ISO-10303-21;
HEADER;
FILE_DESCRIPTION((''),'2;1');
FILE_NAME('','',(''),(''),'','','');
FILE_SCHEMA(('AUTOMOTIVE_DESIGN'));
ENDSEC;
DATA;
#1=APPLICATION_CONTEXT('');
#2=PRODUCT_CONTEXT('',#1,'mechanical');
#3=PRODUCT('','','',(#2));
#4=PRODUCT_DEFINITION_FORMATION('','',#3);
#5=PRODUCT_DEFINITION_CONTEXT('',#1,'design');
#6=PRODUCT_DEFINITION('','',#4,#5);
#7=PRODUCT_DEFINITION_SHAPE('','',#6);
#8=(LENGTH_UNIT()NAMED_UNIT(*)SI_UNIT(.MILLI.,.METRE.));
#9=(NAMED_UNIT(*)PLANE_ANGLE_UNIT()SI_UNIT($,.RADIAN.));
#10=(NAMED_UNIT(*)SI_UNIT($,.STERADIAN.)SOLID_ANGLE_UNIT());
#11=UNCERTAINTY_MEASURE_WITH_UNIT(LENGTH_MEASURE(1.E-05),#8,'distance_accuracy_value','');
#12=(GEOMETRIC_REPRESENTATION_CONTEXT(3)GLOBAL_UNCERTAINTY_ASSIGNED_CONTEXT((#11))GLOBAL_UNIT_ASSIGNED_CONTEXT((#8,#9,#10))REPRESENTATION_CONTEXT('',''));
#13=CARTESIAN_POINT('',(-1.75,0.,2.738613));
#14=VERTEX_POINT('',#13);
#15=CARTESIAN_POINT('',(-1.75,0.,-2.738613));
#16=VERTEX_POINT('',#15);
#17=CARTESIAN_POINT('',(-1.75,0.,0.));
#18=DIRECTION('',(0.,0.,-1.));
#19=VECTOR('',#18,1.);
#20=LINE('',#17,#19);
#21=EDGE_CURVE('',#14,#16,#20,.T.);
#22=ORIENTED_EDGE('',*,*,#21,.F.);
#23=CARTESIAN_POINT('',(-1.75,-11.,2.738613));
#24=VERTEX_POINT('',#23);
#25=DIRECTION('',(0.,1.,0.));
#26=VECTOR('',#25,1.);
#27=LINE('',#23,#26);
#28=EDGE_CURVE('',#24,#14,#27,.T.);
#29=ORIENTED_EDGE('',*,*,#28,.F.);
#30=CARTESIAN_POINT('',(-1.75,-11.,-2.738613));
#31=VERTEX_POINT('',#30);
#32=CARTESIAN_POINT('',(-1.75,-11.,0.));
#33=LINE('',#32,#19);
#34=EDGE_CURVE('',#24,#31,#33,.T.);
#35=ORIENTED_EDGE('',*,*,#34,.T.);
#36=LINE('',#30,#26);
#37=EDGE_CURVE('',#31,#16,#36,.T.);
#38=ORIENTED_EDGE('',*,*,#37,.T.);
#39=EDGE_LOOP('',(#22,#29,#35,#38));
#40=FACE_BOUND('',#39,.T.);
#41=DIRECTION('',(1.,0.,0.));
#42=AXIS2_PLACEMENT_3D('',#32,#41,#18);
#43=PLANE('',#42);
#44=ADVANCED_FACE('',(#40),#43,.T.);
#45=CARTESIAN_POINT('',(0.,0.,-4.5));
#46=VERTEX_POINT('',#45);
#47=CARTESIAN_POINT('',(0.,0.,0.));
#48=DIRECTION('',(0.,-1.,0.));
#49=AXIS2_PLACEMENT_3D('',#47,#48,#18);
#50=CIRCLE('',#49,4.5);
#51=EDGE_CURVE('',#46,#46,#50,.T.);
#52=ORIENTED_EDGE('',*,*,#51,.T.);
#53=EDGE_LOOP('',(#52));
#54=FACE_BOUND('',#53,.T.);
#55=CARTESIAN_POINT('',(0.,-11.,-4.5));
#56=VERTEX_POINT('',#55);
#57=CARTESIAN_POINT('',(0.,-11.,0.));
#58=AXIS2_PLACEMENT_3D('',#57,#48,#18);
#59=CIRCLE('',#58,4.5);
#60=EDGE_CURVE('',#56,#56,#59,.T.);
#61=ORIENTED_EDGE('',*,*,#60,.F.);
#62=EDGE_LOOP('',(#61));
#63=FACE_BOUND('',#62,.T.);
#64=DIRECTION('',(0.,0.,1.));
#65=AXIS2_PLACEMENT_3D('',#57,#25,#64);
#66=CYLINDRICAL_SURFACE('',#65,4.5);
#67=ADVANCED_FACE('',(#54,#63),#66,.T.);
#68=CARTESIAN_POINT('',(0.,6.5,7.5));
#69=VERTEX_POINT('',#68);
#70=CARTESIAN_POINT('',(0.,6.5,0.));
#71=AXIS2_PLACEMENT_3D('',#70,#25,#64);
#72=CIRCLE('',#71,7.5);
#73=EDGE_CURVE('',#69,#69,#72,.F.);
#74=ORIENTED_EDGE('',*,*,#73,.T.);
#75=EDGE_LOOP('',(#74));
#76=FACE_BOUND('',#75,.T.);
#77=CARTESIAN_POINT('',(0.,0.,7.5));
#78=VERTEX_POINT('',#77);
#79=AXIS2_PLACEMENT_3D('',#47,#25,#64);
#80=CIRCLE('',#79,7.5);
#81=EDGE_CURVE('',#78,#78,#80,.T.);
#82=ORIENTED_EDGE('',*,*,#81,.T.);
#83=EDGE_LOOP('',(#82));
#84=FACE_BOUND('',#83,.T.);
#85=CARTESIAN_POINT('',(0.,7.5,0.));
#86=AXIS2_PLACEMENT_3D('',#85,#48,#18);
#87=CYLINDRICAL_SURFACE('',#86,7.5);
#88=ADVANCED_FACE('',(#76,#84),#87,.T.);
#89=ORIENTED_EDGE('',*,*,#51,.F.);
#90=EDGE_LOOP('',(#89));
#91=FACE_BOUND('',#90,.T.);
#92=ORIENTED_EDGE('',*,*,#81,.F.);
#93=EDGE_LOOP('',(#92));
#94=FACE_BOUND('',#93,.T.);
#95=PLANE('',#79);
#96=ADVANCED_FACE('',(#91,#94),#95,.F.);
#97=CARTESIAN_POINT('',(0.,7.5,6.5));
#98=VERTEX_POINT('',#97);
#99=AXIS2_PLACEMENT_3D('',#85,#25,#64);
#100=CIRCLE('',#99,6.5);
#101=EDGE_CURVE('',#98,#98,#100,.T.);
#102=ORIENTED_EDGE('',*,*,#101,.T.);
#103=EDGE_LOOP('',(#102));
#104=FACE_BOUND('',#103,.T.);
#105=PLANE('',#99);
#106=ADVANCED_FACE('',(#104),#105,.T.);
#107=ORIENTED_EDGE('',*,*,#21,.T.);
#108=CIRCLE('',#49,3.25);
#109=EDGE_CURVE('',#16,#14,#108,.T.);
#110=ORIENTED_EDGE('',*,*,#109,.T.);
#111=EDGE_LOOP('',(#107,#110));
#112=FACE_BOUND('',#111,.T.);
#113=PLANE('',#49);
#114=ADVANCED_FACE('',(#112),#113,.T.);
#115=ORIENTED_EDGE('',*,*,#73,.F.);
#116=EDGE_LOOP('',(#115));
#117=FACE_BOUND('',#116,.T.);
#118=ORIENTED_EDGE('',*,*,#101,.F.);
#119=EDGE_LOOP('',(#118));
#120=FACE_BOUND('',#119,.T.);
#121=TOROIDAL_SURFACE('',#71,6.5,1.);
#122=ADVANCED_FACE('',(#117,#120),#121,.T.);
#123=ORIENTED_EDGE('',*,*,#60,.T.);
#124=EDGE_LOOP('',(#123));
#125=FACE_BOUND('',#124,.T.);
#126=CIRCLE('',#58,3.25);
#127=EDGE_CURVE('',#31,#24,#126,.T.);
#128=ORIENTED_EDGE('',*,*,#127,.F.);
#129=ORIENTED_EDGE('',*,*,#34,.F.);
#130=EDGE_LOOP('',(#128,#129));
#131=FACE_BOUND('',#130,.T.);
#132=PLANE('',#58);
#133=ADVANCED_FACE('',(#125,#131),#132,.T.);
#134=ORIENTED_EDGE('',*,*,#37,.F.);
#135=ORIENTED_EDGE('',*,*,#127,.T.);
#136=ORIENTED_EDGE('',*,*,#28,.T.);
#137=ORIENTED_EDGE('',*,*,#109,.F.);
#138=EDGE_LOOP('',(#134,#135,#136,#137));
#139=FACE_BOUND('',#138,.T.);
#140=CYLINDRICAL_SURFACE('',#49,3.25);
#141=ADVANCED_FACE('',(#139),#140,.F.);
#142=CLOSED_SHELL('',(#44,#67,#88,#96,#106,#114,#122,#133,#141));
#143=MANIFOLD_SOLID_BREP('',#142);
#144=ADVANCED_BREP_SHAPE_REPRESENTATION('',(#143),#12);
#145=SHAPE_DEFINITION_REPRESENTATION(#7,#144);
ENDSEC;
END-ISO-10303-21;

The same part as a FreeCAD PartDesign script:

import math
import FreeCAD as App
import Part
import Sketcher

V = App.Vector
Q = App.Units.Quantity


def edges_at(feature, points):
    """Names of the edges that pass closest to the given points."""
    edges = feature.Shape.Edges
    near = lambda p: min(range(len(edges)), key=lambda i: edges[i].distToShape(Part.Vertex(*p))[0])
    return sorted({f"Edge{near(p) + 1}" for p in points})

doc = App.newDocument("Part")
body = doc.addObject("PartDesign::Body", "Body")

sketch1 = body.newObject("Sketcher::SketchObject", "Sketch")
sketch1.AttachmentSupport = (doc.getObject("XZ_Plane"), [""])
sketch1.MapMode = "FlatFace"
sketch1.addGeometry(Part.Circle(V(0, 0, 0), V(0, 0, 1), 8), False)
sketch1.addConstraint([
    Sketcher.Constraint("Coincident", 0, 3, -1, 1),
    Sketcher.Constraint("Diameter", 0, Q("15 mm")),
])
pad1 = body.newObject("PartDesign::Pad", "Pad")
pad1.Profile = sketch1
pad1.Length = 7.5
pad1.Reversed = True
doc.recompute()

fillet = body.newObject("PartDesign::Fillet", "Fillet")
fillet.Base = (pad1, edges_at(pad1, [(0, 7.5, -7.5)]))
fillet.Radius = 1

sketch2 = body.newObject("Sketcher::SketchObject", "Sketch001")
sketch2.AttachmentSupport = (doc.getObject("XZ_Plane"), [""])
sketch2.MapMode = "FlatFace"
sketch2.addGeometry(Part.Circle(V(0, 0, 0), V(0, 0, 1), 4.5), False)
sketch2.addConstraint([
    Sketcher.Constraint("Coincident", 0, 3, -1, 1),
    Sketcher.Constraint("Diameter", 0, Q("9 mm")),
])
pad2 = body.newObject("PartDesign::Pad", "Pad001")
pad2.Profile = sketch2
pad2.Length = 11

sketch3 = body.newObject("Sketcher::SketchObject", "Sketch002")
sketch3.AttachmentSupport = (doc.getObject("XZ_Plane"), [""])
sketch3.MapMode = "FlatFace"
sketch3.AttachmentOffset = App.Placement(V(0, 0, 11), App.Rotation())
sketch3.addGeometry(Part.Circle(V(0, 0, 0), V(0, 0, 1), 3.2), False)
sketch3.addConstraint([
    Sketcher.Constraint("Coincident", 0, 3, -1, 1),
    Sketcher.Constraint("Diameter", 0, Q("6.5 mm")),
])
pocket1 = body.newObject("PartDesign::Pocket", "Pocket")
pocket1.Profile = sketch3
pocket1.Length = 11

sketch4 = body.newObject("Sketcher::SketchObject", "Sketch003")
sketch4.AttachmentSupport = (doc.getObject("XZ_Plane"), [""])
sketch4.MapMode = "FlatFace"
sketch4.AttachmentOffset = App.Placement(V(0, 0, 11), App.Rotation())
sketch4.addGeometry([
    Part.LineSegment(V(-1.8, -2.7, 0), V(-1.8, 2.7, 0)),
    Part.ArcOfCircle(Part.Circle(V(0, 0, 0), V(0, 0, 1), 3.2), math.radians(123), math.radians(180)),
    Part.ArcOfCircle(Part.Circle(V(0, 0, 0), V(0, 0, 1), 3.2), math.radians(180), math.radians(237)),
], False)
sketch4.addConstraint([
    Sketcher.Constraint("Coincident", 0, 2, 1, 1),
    Sketcher.Constraint("Tangent", 1, 2, 2, 1),
    Sketcher.Constraint("Coincident", 2, 2, 0, 1),
    Sketcher.Constraint("Vertical", 0),
    Sketcher.Constraint("Coincident", 1, 3, -1, 1),
    Sketcher.Constraint("Equal", 1, 2),
    Sketcher.Constraint("PointOnObject", 1, 2, -1),
    Sketcher.Constraint("Radius", 1, Q("3.25 mm")),
    Sketcher.Constraint("DistanceX", 1, 2, 0, 2, Q("1.5 mm")),
])
pad3 = body.newObject("PartDesign::Pad", "Pad002")
pad3.Profile = sketch4
pad3.Length = 11
pad3.Reversed = True

doc.recompute()
